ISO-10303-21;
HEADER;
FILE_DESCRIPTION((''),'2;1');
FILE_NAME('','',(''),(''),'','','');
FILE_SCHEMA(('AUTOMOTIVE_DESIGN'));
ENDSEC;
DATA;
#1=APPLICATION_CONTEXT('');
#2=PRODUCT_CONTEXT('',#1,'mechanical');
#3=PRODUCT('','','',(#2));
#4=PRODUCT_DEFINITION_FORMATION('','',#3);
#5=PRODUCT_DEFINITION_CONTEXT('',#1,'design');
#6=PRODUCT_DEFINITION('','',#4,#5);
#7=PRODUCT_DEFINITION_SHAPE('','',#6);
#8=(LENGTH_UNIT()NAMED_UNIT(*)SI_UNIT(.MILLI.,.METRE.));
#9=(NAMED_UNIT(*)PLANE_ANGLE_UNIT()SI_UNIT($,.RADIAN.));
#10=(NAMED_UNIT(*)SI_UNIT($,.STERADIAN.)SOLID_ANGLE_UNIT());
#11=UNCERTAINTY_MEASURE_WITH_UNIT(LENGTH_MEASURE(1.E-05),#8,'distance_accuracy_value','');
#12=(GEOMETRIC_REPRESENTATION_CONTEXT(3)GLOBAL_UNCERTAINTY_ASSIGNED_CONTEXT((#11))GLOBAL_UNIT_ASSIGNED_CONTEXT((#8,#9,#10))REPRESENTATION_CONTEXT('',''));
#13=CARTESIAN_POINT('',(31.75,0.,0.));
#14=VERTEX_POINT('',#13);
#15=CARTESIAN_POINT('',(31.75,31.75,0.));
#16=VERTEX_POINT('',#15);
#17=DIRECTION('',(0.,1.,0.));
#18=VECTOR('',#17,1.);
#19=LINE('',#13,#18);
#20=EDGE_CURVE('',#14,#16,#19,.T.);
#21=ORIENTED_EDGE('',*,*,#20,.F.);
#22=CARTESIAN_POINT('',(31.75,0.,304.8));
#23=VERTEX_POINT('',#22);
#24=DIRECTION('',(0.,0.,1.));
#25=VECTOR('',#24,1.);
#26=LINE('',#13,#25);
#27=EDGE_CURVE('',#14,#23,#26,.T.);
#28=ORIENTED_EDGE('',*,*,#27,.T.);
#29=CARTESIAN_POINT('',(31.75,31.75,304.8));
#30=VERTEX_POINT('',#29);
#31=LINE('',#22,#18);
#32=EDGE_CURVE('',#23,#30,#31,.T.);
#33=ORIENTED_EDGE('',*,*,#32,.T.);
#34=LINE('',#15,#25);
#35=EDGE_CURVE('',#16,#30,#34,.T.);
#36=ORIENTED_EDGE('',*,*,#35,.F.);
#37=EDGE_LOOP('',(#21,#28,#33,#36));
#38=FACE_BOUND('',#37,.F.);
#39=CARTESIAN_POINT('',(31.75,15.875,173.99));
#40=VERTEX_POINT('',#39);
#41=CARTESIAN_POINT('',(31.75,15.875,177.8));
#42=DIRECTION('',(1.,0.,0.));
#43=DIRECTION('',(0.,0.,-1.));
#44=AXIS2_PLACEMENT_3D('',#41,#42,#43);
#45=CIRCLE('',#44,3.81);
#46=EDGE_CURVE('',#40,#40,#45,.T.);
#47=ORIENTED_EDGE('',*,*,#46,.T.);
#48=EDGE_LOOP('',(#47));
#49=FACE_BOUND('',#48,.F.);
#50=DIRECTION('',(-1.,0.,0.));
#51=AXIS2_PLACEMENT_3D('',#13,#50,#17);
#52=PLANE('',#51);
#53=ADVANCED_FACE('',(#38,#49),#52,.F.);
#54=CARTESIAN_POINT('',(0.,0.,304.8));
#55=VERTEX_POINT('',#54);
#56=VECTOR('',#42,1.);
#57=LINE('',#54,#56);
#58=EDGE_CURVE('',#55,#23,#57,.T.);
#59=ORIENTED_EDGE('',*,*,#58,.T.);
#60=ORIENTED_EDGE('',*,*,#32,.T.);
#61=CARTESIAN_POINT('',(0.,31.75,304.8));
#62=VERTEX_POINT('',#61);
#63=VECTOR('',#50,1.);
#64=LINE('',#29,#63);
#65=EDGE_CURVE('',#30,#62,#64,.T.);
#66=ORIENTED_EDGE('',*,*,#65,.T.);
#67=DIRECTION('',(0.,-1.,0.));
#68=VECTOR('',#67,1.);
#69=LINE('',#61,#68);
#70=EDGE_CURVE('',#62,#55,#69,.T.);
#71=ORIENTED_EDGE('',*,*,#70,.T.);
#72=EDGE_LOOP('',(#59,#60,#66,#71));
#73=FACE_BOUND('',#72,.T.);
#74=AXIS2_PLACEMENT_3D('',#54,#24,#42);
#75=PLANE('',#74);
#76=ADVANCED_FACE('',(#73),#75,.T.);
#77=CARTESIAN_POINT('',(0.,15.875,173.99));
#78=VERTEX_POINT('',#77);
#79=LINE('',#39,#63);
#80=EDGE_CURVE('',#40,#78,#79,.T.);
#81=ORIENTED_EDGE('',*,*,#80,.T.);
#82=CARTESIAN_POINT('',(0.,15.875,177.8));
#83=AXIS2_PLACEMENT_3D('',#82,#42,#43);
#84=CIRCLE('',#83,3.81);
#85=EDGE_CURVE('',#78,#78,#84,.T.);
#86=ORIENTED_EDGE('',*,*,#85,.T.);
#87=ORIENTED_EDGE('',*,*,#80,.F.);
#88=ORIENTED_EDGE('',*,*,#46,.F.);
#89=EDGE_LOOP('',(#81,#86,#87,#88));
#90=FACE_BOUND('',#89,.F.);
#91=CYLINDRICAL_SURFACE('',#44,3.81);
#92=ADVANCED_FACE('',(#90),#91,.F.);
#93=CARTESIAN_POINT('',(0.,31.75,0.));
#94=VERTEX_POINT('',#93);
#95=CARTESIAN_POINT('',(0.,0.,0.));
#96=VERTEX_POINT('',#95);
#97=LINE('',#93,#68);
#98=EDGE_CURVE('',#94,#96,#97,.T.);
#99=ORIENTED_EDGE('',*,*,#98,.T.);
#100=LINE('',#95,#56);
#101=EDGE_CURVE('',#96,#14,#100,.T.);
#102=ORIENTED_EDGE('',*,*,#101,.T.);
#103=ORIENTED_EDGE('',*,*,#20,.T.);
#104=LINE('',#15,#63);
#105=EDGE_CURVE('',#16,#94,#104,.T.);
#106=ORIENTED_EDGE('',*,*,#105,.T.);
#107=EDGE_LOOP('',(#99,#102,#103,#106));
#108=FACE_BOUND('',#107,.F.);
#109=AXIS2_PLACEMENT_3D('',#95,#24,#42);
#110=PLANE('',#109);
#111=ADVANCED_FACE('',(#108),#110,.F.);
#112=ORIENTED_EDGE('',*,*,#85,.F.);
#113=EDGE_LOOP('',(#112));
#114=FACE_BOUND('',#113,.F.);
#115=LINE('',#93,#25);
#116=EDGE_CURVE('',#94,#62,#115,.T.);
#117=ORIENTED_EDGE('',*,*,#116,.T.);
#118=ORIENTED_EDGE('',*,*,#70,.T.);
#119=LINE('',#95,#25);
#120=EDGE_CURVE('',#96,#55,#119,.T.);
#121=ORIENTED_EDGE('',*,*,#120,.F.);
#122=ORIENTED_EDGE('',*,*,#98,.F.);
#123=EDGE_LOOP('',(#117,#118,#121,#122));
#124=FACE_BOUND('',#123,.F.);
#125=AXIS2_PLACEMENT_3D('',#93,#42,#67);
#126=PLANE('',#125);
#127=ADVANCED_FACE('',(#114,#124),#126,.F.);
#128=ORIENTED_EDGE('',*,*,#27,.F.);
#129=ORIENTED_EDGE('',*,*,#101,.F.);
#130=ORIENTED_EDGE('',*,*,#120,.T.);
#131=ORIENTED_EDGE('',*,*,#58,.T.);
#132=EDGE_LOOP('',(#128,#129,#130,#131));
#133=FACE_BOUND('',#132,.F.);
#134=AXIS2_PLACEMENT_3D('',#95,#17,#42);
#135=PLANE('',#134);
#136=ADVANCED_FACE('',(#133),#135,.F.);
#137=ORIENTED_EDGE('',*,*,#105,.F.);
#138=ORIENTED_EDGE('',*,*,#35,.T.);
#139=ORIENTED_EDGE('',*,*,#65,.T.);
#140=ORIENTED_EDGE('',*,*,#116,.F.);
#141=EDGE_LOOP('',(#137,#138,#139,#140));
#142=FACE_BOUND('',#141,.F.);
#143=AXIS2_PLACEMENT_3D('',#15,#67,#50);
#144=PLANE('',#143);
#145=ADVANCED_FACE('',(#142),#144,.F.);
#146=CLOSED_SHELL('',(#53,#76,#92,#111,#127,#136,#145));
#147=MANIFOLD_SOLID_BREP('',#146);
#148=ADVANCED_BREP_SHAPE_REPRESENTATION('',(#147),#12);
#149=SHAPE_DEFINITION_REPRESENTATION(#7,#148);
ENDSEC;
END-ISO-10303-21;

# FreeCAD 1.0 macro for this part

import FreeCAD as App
import Part
import Sketcher
Q = App.Units.Quantity


def add_polygon(sketch, points):
    """Adds a closed chain of lines whose ends are joined by coincident constraints."""
    first, n = sketch.GeometryCount, len(points)
    for a, b in zip(points, points[1:] + points[:1]):
        sketch.addGeometry(Part.LineSegment(App.Vector(*a, 0), App.Vector(*b, 0)), False)
    for i in range(n):
        sketch.addConstraint(Sketcher.Constraint("Coincident", first + i, 2, first + (i + 1) % n, 1))

doc = App.newDocument("Part")
body = doc.addObject("PartDesign::Body", "Body")

# Sketch on XY plane
sketch1 = doc.addObject("Sketcher::SketchObject", "Sketch")
body.addObject(sketch1)
sketch1.AttachmentSupport = (doc.XY_Plane, [""])
sketch1.MapMode = "FlatFace"
add_polygon(sketch1, [(0, 31.75), (0, 0), (31.75, 0), (31.75, 31.75)])  # lines 0-3
sketch1.addConstraint([
    Sketcher.Constraint("Vertical", 0),
    Sketcher.Constraint("Horizontal", 1),
    Sketcher.Constraint("Vertical", 2),
    Sketcher.Constraint("Horizontal", 3),
    Sketcher.Constraint("Coincident", 0, 2, -1, 1),
    Sketcher.Constraint("Equal", 3, 0),
    Sketcher.Constraint("DistanceX", 1, 1, 1, 2, Q("1.25 in")),
])
pad1 = doc.addObject("PartDesign::Pad", "Pad")
body.addObject(pad1)
pad1.Profile = sketch1
pad1.Length = Q("12 in")

# Sketch on YZ plane
sketch2 = doc.addObject("Sketcher::SketchObject", "Sketch001")
body.addObject(sketch2)
sketch2.AttachmentSupport = (doc.YZ_Plane, [""])
sketch2.MapMode = "FlatFace"
sketch2.AttachmentOffset = App.Placement(App.Vector(0, 0, 1.25 * 25.4), App.Rotation())
sketch2.addGeometry(Part.Circle(App.Vector(15.875, 177.8, 0), App.Vector(0, 0, 1), 3.81), False)
sketch2.addConstraint([
    Sketcher.Constraint("Diameter", 0, Q("0.3 in")),
    Sketcher.Constraint("DistanceY", -1, 1, 0, 3, Q("7 in")),
    Sketcher.Constraint("DistanceX", -1, 1, 0, 3, Q("0.625 in")),
])
pocket1 = doc.addObject("PartDesign::Pocket", "Pocket")
body.addObject(pocket1)
pocket1.Profile = sketch2
pocket1.Type = "ThroughAll"

doc.recompute()
